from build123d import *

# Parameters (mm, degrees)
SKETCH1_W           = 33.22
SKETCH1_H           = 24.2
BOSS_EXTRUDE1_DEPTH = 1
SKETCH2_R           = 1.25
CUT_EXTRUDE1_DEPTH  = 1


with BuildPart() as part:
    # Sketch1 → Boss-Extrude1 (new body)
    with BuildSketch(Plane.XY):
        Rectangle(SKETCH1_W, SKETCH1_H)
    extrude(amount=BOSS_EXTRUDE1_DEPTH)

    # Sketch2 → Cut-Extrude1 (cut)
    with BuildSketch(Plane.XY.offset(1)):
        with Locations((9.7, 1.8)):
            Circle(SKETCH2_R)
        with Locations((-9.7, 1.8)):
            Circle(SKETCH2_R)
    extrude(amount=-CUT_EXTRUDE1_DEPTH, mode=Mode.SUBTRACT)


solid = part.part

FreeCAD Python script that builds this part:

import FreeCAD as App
import Part
import Sketcher
from FreeCAD import Vector

doc = App.newDocument("Part")
body = doc.addObject("PartDesign::Body", "Body")

# Sketch on XY plane
sketch1 = body.newObject("Sketcher::SketchObject", "Sketch")
sketch1.AttachmentSupport = (doc.getObject("XY_Plane"), [""])
sketch1.MapMode = "FlatFace"
sketch1.addGeometry(Part.LineSegment(Vector(-16.61, 12.1, 0), Vector(-16.61, -12.1, 0)), False)
sketch1.addGeometry(Part.LineSegment(Vector(-16.61, -12.1, 0), Vector(16.61, -12.1, 0)), False)
sketch1.addGeometry(Part.LineSegment(Vector(16.61, -12.1, 0), Vector(16.61, 12.1, 0)), False)
sketch1.addGeometry(Part.LineSegment(Vector(16.61, 12.1, 0), Vector(-16.61, 12.1, 0)), False)
sketch1.addConstraint(Sketcher.Constraint("Coincident", 0, 2, 1, 1))
sketch1.addConstraint(Sketcher.Constraint("Coincident", 1, 2, 2, 1))
sketch1.addConstraint(Sketcher.Constraint("Coincident", 2, 2, 3, 1))
sketch1.addConstraint(Sketcher.Constraint("Coincident", 3, 2, 0, 1))
sketch1.addConstraint(Sketcher.Constraint("Vertical", 0))
sketch1.addConstraint(Sketcher.Constraint("Horizontal", 1))
sketch1.addConstraint(Sketcher.Constraint("Vertical", 2))
sketch1.addConstraint(Sketcher.Constraint("Horizontal", 3))
sketch1.addConstraint(Sketcher.Constraint("Symmetric", 0, 2, 2, 2, -1, 1))
sketch1.addConstraint(Sketcher.Constraint("DistanceY", 0, 2, 0, 1, 24.2))
sketch1.addConstraint(Sketcher.Constraint("DistanceX", 1, 1, 1, 2, 33.22))
pad1 = body.newObject("PartDesign::Pad", "Pad")
pad1.Profile = sketch1
pad1.Length = 1

# Sketch on XY plane
sketch2 = body.newObject("Sketcher::SketchObject", "Sketch001")
sketch2.AttachmentSupport = (doc.getObject("XY_Plane"), [""])
sketch2.MapMode = "FlatFace"
sketch2.AttachmentOffset = App.Placement(Vector(0, 0, 1), App.Rotation())
sketch2.addGeometry(Part.Circle(Vector(9.7, 1.8, 0), Vector(0, 0, 1), 1.25), False)
sketch2.addGeometry(Part.Circle(Vector(-9.7, 1.8, 0), Vector(0, 0, 1), 1.25), False)
sketch2.addConstraint(Sketcher.Constraint("Equal", 0, 1))
sketch2.addConstraint(Sketcher.Constraint("Symmetric", 0, 3, 1, 3, -2))
sketch2.addConstraint(Sketcher.Constraint("Diameter", 0, 2.5))
sketch2.addConstraint(Sketcher.Constraint("DistanceX", -1, 1, 0, 3, 9.7))
sketch2.addConstraint(Sketcher.Constraint("DistanceY", -1, 1, 0, 3, 1.8))
pocket1 = body.newObject("PartDesign::Pocket", "Pocket")
pocket1.Profile = sketch2
pocket1.Length = 1

doc.recompute()
